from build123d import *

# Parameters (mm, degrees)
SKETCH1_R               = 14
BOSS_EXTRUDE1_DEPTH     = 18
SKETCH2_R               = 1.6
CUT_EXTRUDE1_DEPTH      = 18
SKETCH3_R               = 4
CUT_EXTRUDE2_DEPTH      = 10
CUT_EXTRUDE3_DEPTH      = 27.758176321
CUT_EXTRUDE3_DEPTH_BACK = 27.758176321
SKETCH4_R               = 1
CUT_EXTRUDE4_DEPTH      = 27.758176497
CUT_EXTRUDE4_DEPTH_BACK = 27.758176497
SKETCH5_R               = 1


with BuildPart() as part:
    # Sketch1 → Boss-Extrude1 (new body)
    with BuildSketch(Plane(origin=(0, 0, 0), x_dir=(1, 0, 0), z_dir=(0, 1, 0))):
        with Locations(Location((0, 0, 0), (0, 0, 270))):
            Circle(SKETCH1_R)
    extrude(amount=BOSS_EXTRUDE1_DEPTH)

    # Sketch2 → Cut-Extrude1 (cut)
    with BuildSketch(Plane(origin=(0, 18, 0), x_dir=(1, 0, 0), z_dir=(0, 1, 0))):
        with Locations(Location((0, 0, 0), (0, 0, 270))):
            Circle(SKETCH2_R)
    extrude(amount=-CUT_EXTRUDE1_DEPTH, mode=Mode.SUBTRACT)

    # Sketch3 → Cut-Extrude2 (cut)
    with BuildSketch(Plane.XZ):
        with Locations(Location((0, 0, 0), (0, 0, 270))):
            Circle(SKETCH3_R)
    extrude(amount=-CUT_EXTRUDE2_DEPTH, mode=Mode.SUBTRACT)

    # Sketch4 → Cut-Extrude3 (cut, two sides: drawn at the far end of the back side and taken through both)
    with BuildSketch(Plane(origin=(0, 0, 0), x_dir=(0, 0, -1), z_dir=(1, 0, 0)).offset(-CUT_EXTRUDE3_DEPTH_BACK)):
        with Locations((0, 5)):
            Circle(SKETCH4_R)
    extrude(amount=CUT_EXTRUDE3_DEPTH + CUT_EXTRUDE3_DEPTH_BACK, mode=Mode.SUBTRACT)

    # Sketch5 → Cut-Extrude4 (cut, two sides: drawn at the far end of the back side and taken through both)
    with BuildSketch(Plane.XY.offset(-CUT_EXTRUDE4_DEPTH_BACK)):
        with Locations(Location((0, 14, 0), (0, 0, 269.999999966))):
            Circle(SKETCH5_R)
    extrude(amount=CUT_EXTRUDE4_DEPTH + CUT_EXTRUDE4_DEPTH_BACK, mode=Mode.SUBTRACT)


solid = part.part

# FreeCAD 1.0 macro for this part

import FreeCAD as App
import Part
import Sketcher
Q = App.Units.Quantity

doc = App.newDocument("Part")
body = doc.addObject("PartDesign::Body", "Body")

sketch1 = doc.addObject("Sketcher::SketchObject", "Sketch")
body.addObject(sketch1)
sketch1.AttachmentSupport = (doc.XZ_Plane, [""])
sketch1.MapMode = "FlatFace"
sketch1.addGeometry(Part.Circle(App.Vector(0, 0, 0), App.Vector(0, 0, 1), 14), False)
sketch1.addConstraint([
    Sketcher.Constraint("Coincident", 0, 3, -1, 1),
    Sketcher.Constraint("Diameter", 0, Q("28 mm")),
])
pad1 = doc.addObject("PartDesign::Pad", "Pad")
body.addObject(pad1)
pad1.Profile = sketch1
pad1.Length = 18
pad1.Reversed = True

sketch2 = doc.addObject("Sketcher::SketchObject", "Sketch001")
body.addObject(sketch2)
sketch2.AttachmentSupport = (doc.XZ_Plane, [""])
sketch2.MapMode = "FlatFace"
sketch2.AttachmentOffset = App.Placement(App.Vector(0, 0, -18), App.Rotation())
sketch2.addGeometry(Part.Circle(App.Vector(0, 0, 0), App.Vector(0, 0, 1), 1.6), False)
sketch2.addConstraint([
    Sketcher.Constraint("Coincident", 0, 3, -1, 1),
    Sketcher.Constraint("Diameter", 0, Q("3.2 mm")),
])
pocket1 = doc.addObject("PartDesign::Pocket", "Pocket")
body.addObject(pocket1)
pocket1.Profile = sketch2
pocket1.Length = 18
pocket1.Reversed = True

sketch3 = doc.addObject("Sketcher::SketchObject", "Sketch002")
body.addObject(sketch3)
sketch3.AttachmentSupport = (doc.XZ_Plane, [""])
sketch3.MapMode = "FlatFace"
sketch3.addGeometry(Part.Circle(App.Vector(0, 0, 0), App.Vector(0, 0, 1), 4), False)
sketch3.addConstraint([
    Sketcher.Constraint("Coincident", 0, 3, -1, 1),
    Sketcher.Constraint("Diameter", 0, Q("8 mm")),
])
pocket2 = doc.addObject("PartDesign::Pocket", "Pocket001")
body.addObject(pocket2)
pocket2.Profile = sketch3
pocket2.Length = 10

sketch4 = doc.addObject("Sketcher::SketchObject", "Sketch003")
body.addObject(sketch4)
sketch4.AttachmentSupport = (doc.YZ_Plane, [""])
sketch4.MapMode = "FlatFace"
sketch4.addGeometry(Part.Circle(App.Vector(5, 0, 0), App.Vector(0, 0, 1), 1), False)
sketch4.addConstraint([
    Sketcher.Constraint("PointOnObject", 0, 3, -1),
    Sketcher.Constraint("Diameter", 0, Q("2 mm")),
    Sketcher.Constraint("DistanceX", -1, 1, 0, 3, Q("5 mm")),
])
pocket3 = doc.addObject("PartDesign::Pocket", "Pocket002")
body.addObject(pocket3)
pocket3.Profile = sketch4
pocket3.Type = "ThroughAll"
pocket3.Midplane = True

sketch5 = doc.addObject("Sketcher::SketchObject", "Sketch004")
body.addObject(sketch5)
sketch5.AttachmentSupport = (doc.XY_Plane, [""])
sketch5.MapMode = "FlatFace"
sketch5.addGeometry(Part.Circle(App.Vector(0, 14, 0), App.Vector(0, 0, 1), 1), False)
sketch5.addConstraint([
    Sketcher.Constraint("PointOnObject", 0, 3, -2),
    Sketcher.Constraint("Diameter", 0, Q("2 mm")),
    Sketcher.Constraint("DistanceY", -1, 1, 0, 3, Q("14 mm")),
])
pocket4 = doc.addObject("PartDesign::Pocket", "Pocket003")
body.addObject(pocket4)
pocket4.Profile = sketch5
pocket4.Type = "ThroughAll"
pocket4.Midplane = True

doc.recompute()
